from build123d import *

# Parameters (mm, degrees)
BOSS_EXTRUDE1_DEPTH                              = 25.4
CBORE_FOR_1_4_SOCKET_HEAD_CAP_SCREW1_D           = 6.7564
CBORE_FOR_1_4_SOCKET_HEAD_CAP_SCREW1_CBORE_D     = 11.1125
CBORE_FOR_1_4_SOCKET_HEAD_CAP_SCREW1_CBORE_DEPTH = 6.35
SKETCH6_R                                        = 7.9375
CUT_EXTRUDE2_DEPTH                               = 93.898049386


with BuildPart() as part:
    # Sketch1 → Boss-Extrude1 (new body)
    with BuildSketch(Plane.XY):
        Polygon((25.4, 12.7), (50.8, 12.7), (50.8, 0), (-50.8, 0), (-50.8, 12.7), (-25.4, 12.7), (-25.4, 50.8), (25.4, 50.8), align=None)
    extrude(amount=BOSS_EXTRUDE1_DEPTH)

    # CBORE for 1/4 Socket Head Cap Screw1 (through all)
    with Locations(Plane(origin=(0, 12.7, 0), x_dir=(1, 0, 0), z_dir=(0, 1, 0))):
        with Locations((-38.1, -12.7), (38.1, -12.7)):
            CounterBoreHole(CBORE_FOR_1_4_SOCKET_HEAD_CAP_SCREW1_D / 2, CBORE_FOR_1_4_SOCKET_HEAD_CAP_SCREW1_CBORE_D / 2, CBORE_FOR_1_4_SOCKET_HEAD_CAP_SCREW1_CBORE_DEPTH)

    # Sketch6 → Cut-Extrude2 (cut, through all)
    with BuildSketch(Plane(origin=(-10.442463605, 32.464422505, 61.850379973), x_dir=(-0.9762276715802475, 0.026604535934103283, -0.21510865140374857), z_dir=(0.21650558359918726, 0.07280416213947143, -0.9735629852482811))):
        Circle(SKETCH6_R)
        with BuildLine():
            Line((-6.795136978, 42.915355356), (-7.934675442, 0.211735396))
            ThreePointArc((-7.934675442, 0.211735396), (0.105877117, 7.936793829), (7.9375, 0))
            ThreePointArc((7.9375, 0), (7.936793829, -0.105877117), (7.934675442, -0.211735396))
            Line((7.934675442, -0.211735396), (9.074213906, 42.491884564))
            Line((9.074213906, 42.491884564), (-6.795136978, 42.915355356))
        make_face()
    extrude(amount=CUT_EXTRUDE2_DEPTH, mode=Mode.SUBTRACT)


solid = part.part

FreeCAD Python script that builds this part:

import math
import FreeCAD as App
import Part
import Sketcher
Q = App.Units.Quantity


def add_polygon(sketch, points):
    """Adds a closed chain of lines whose ends are joined by coincident constraints."""
    first, n = sketch.GeometryCount, len(points)
    for a, b in zip(points, points[1:] + points[:1]):
        sketch.addGeometry(Part.LineSegment(App.Vector(*a, 0), App.Vector(*b, 0)), False)
    for i in range(n):
        sketch.addConstraint(Sketcher.Constraint("Coincident", first + i, 2, first + (i + 1) % n, 1))

doc = App.newDocument("Part")
body = doc.addObject("PartDesign::Body", "Body")

sketch1 = body.newObject("Sketcher::SketchObject", "Sketch")
sketch1.AttachmentSupport = (doc.getObject("XY_Plane"), [""])
sketch1.MapMode = "FlatFace"
add_polygon(sketch1, [(50.8, 12.7), (25.4, 12.7), (25.4, 50.8), (-25.4, 50.8), (-25.4, 12.7), (-50.8, 12.7), (-50.8, 0), (50.8, 0)])
sketch1.addConstraint([
    Sketcher.Constraint("Horizontal", 0),
    Sketcher.Constraint("Vertical", 1),
    Sketcher.Constraint("Horizontal", 2),
    Sketcher.Constraint("Vertical", 3),
    Sketcher.Constraint("Horizontal", 4),
    Sketcher.Constraint("Vertical", 5),
    Sketcher.Constraint("Horizontal", 6),
    Sketcher.Constraint("Vertical", 7),
    Sketcher.Constraint("Symmetric", 5, 2, 6, 2, -1, 1),
    Sketcher.Constraint("Symmetric", 0, 2, 3, 2, -2),
    Sketcher.Constraint("DistanceX", 0, 2, 0, 1, Q("1 in")),
    Sketcher.Constraint("DistanceX", 2, 2, 2, 1, Q("2 in")),
    Sketcher.Constraint("DistanceY", 1, 1, 1, 2, Q("1.5 in")),
    Sketcher.Constraint("DistanceY", 5, 2, 5, 1, Q("0.5 in")),
])
pad1 = body.newObject("PartDesign::Pad", "Pad")
pad1.Profile = sketch1
pad1.Length = Q("1 in")

sketch2 = body.newObject("Sketcher::SketchObject", "Sketch001")
sketch2.AttachmentSupport = (doc.getObject("XZ_Plane"), [""])
sketch2.MapMode = "FlatFace"
sketch2.AttachmentOffset = App.Placement(App.Vector(0, 0, -0.5 * 25.4), App.Rotation())
sketch2.addGeometry([
    Part.Circle(App.Vector(-38.1, 12.7, 0), App.Vector(0, 0, 1), 3.3782),
    Part.Circle(App.Vector(38.1, 12.7, 0), App.Vector(0, 0, 1), 3.3782),
], False)
sketch2.addConstraint([
    Sketcher.Constraint("Equal", 0, 1),
    Sketcher.Constraint("Symmetric", 0, 3, 1, 3, -2),
    Sketcher.Constraint("Diameter", 0, Q("0.266 in")),
    Sketcher.Constraint("DistanceX", 0, 3, 1, 3, Q("3 in")),
    Sketcher.Constraint("DistanceY", -1, 1, 0, 3, Q("0.5 in")),
])
doc.recompute()
hole = body.newObject("PartDesign::Hole", "Hole")
hole.Profile = sketch2
hole.ThreadType = "None"
hole.Diameter = Q("0.266 in")
hole.DepthType = "ThroughAll"
hole.HoleCutType = "Counterbore"
hole.HoleCutDiameter = Q("0.4375 in")
hole.HoleCutDepth = Q("0.25 in")
hole.Reversed = True

sketch3 = body.newObject("Sketcher::SketchObject", "Sketch002")
sketch3.Placement = App.Placement(App.Vector(-10.442464, 32.464423, 61.85038), App.Rotation(App.Vector(-0.976227672, 0.026604536, -0.215108651), App.Vector(0.010240386, 0.996991351, 0.076833468), App.Vector(0.216505584, 0.072804162, -0.973562985), "ZXY"))
sketch3.addGeometry([
    Part.ArcOfCircle(Part.Circle(App.Vector(0, 0, 0), App.Vector(0, 0, 1), 7.9375), math.radians(178.471435), math.radians(358.471435)),
    Part.LineSegment(App.Vector(7.934675, -0.211735, 0), App.Vector(9.074214, 42.491885, 0)),
    Part.LineSegment(App.Vector(9.074214, 42.491885, 0), App.Vector(-6.795137, 42.915355, 0)),
    Part.LineSegment(App.Vector(-6.795137, 42.915355, 0), App.Vector(-7.934675, 0.211735, 0)),
], False)
sketch3.addConstraint([
    Sketcher.Constraint("Tangent", 0, 2, 1, 1),
    Sketcher.Constraint("Coincident", 1, 2, 2, 1),
    Sketcher.Constraint("Coincident", 2, 2, 3, 1),
    Sketcher.Constraint("Tangent", 3, 2, 0, 1),
    Sketcher.Constraint("Coincident", 0, 3, -1, 1),
    Sketcher.Constraint("Perpendicular", 1, 2),
    Sketcher.Constraint("Perpendicular", 2, 3),
    Sketcher.Constraint("Radius", 0, Q("0.3125 in")),
    Sketcher.Constraint("Distance", 1, Q("42.718821 mm")),
    Sketcher.Constraint("DistanceX", 0, 2, 1, 2, Q("1.139538 mm")),
])
pocket1 = body.newObject("PartDesign::Pocket", "Pocket")
pocket1.Profile = sketch3
pocket1.Type = "ThroughAll"
pocket1.Reversed = True

doc.recompute()
